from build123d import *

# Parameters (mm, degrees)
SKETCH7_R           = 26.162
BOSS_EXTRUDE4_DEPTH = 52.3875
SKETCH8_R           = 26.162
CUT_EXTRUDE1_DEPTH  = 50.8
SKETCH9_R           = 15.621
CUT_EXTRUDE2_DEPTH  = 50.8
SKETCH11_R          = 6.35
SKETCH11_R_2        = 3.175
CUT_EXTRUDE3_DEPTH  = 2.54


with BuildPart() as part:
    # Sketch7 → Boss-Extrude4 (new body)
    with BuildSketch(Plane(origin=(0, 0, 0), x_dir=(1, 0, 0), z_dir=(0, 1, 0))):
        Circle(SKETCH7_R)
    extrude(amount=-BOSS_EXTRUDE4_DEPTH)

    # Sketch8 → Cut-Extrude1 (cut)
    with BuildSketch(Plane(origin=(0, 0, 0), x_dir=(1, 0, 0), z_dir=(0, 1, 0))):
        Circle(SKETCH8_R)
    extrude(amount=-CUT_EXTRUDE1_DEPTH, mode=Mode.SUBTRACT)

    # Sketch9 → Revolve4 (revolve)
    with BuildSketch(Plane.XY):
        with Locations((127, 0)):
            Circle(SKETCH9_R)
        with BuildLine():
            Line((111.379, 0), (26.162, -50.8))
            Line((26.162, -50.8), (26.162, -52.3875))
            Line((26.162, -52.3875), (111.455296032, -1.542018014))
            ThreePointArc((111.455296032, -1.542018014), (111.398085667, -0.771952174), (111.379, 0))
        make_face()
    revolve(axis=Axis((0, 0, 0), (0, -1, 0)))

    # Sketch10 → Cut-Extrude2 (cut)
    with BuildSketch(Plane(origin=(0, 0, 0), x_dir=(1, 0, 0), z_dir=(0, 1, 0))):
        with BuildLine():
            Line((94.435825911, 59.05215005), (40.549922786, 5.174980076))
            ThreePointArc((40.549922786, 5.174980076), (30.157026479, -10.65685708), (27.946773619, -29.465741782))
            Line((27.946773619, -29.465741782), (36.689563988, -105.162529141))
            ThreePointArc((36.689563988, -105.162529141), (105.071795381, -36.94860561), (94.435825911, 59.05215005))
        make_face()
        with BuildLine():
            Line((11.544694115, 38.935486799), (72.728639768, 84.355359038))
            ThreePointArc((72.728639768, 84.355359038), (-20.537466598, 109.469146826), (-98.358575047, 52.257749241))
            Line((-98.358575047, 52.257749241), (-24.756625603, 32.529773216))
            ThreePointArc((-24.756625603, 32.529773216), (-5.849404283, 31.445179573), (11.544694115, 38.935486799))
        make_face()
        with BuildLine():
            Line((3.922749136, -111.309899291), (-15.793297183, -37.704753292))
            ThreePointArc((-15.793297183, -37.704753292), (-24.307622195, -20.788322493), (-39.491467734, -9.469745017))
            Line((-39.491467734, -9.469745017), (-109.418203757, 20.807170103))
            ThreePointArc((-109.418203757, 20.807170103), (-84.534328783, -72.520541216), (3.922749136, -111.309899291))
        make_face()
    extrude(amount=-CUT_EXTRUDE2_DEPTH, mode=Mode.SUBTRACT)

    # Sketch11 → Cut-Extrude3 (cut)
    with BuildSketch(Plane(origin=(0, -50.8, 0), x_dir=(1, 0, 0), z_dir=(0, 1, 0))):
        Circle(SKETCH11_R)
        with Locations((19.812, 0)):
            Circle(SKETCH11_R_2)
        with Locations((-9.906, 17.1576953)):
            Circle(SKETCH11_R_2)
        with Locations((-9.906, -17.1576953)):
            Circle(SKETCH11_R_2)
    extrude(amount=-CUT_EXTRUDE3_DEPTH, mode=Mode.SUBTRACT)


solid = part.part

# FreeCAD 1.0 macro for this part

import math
import FreeCAD as App
import Part
import Sketcher
from FreeCAD import Vector
Q = App.Units.Quantity

doc = App.newDocument("Part")
params = doc.addObject("Spreadsheet::Sheet", "Params")
for row, (alias, value) in enumerate([
    ("sketch1_diameter", "2.06 in"),
    ("pad1_length", "2.0625 in"),
    ("sketch2_diameter", "2.06 in"),
    ("pocket1_length", "2 in"),
    ("sketch3_radius", "0.615 in"),
    ("sketch3_height", "0.0625 in"),
    ("revolution_angle", "360 deg"),
    ("sketch4_length", "3 in"),
    ("sketch4_radius", "4.385 in"),
    ("pocket2_length", "2 in"),
    ("sketch5_diameter", "0.5 in"),
    ("sketch5_diameter2", "0.25 in"),
    ("pocket3_length", "0.1 in"),
], start=1):
    params.set(f"A{row}", alias)
    params.set(f"B{row}", "=" + value)
    params.setAlias(f"B{row}", alias)

body = doc.addObject("PartDesign::Body", "Body")

sketch1 = body.newObject("Sketcher::SketchObject", "Sketch")
sketch1.AttachmentSupport = (doc.getObject("XZ_Plane"), [""])
sketch1.MapMode = "FlatFace"
sketch1.addGeometry(Part.Circle(Vector(0, 0, 0), Vector(0, 0, 1), 26), False)
sketch1.addConstraint([
    Sketcher.Constraint("Coincident", 0, 3, -1, 1),
    Sketcher.Constraint("Diameter", 0, Q("2.06 in")),
])
sketch1.setExpression("Constraints[1]", "Params.sketch1_diameter")
pad1 = body.newObject("PartDesign::Pad", "Pad")
pad1.Profile = sketch1
pad1.setExpression("Length", "Params.pad1_length")

sketch2 = body.newObject("Sketcher::SketchObject", "Sketch001")
sketch2.AttachmentSupport = (doc.getObject("XZ_Plane"), [""])
sketch2.MapMode = "FlatFace"
sketch2.addGeometry(Part.Circle(Vector(0, 0, 0), Vector(0, 0, 1), 26), False)
sketch2.addConstraint([
    Sketcher.Constraint("Coincident", 0, 3, -1, 1),
    Sketcher.Constraint("Diameter", 0, Q("2.06 in")),
])
sketch2.setExpression("Constraints[1]", "Params.sketch2_diameter")
pocket1 = body.newObject("PartDesign::Pocket", "Pocket")
pocket1.Profile = sketch2
pocket1.setExpression("Length", "Params.pocket1_length")
pocket1.Reversed = True

sketch3 = body.newObject("Sketcher::SketchObject", "Sketch002")
sketch3.AttachmentSupport = (doc.getObject("XY_Plane"), [""])
sketch3.MapMode = "FlatFace"
sketch3.addGeometry([
    Part.LineSegment(Vector(111.4, 0, 0), Vector(26.2, -50.8, 0)),
    Part.LineSegment(Vector(26.2, -50.8, 0), Vector(26.2, -52.4, 0)),
    Part.LineSegment(Vector(26.2, -52.4, 0), Vector(111.5, -1.5, 0)),
    Part.ArcOfCircle(Part.Circle(Vector(127, 0, 0), Vector(0, 0, 1), 15.6), math.radians(-174), math.radians(180)),
], False)
sketch3.addConstraint([
    Sketcher.Constraint("Coincident", 0, 2, 1, 1),
    Sketcher.Constraint("Coincident", 1, 2, 2, 1),
    Sketcher.Constraint("Coincident", 2, 2, 3, 1),
    Sketcher.Constraint("Coincident", 3, 2, 0, 1),
    Sketcher.Constraint("Vertical", 1),
    Sketcher.Constraint("PointOnObject", 3, 3, -1),
    Sketcher.Constraint("PointOnObject", 3, 2, -1),
    Sketcher.Constraint("Parallel", 0, 2),
    Sketcher.Constraint("DistanceX", -1, 1, 3, 3, Q("5 in")),
    Sketcher.Constraint("DistanceY", 0, 2, -1, 1, Q("2 in")),
    Sketcher.Constraint("Radius", 3, Q("0.615 in")),
    Sketcher.Constraint("DistanceY", 1, 2, 1, 1, Q("0.0625 in")),
    Sketcher.Constraint("DistanceX", -1, 1, 0, 2, Q("1.03 in")),
])
sketch3.setExpression("Constraints[10]", "Params.sketch3_radius")
sketch3.setExpression("Constraints[11]", "Params.sketch3_height")
revolution = body.newObject("PartDesign::Revolution", "Revolution")
revolution.Profile = sketch3
revolution.ReferenceAxis = (sketch3, ["V_Axis"])
revolution.setExpression("Angle", "Params.revolution_angle")

sketch4 = body.newObject("Sketcher::SketchObject", "Sketch003")
sketch4.AttachmentSupport = (doc.getObject("XZ_Plane"), [""])
sketch4.MapMode = "FlatFace"
sketch4.addGeometry([
    Part.LineSegment(Vector(94, -59, 0), Vector(41, -5, 0)),
    Part.ArcOfCircle(Part.Circle(Vector(69, 25, 0), Vector(0, 0, 1), 41), math.radians(173), math.radians(227)),
    Part.LineSegment(Vector(28, 29, 0), Vector(37, 105, 0)),
    Part.ArcOfCircle(Part.Circle(Vector(0, 0, 0), Vector(0, 0, 1), 111), math.radians(-32), math.radians(71)),
    Part.LineSegment(Vector(12, -39, 0), Vector(73, -84, 0)),
    Part.ArcOfCircle(Part.Circle(Vector(0, 0, 0), Vector(0, 0, 1), 111), math.radians(-152), math.radians(-49)),
    Part.LineSegment(Vector(-98, -52, 0), Vector(-25, -33, 0)),
    Part.ArcOfCircle(Part.Circle(Vector(-13, -72, 0), Vector(0, 0, 1), 41), math.radians(53), math.radians(107)),
    Part.LineSegment(Vector(4, 111, 0), Vector(-16, 38, 0)),
    Part.ArcOfCircle(Part.Circle(Vector(-56, 47, 0), Vector(0, 0, 1), 41), math.radians(-67), math.radians(-13)),
    Part.LineSegment(Vector(-39, 9, 0), Vector(-109, -21, 0)),
    Part.ArcOfCircle(Part.Circle(Vector(0, 0, 0), Vector(0, 0, 1), 111), math.radians(88), math.radians(191)),
], False)
sketch4.addConstraint([
    Sketcher.Constraint("Coincident", 0, 2, 1, 2),
    Sketcher.Constraint("Tangent", 1, 1, 2, 1),
    Sketcher.Constraint("Coincident", 2, 2, 3, 2),
    Sketcher.Constraint("Coincident", 3, 1, 0, 1),
    Sketcher.Constraint("Coincident", 4, 2, 5, 2),
    Sketcher.Constraint("Coincident", 5, 1, 6, 1),
    Sketcher.Constraint("Coincident", 6, 2, 7, 2),
    Sketcher.Constraint("Tangent", 7, 1, 4, 1),
    Sketcher.Constraint("Coincident", 8, 2, 9, 2),
    Sketcher.Constraint("Tangent", 9, 1, 10, 1),
    Sketcher.Constraint("Coincident", 10, 2, 11, 2),
    Sketcher.Constraint("Coincident", 11, 1, 8, 1),
    Sketcher.Constraint("Coincident", 3, 3, -1, 1),
    Sketcher.Constraint("Coincident", 5, 3, -1, 1),
    Sketcher.Constraint("Coincident", 11, 3, -1, 1),
    Sketcher.Constraint("Equal", 3, 5),
    Sketcher.Constraint("Equal", 1, 7),
    Sketcher.Constraint("Equal", 7, 9),
    Sketcher.Constraint("Equal", 5, 11),
    Sketcher.Constraint("Equal", 0, 2),
    Sketcher.Constraint("Equal", 2, 4),
    Sketcher.Constraint("Equal", 4, 6),
    Sketcher.Constraint("Equal", 6, 8),
    Sketcher.Constraint("Equal", 8, 10),
    Sketcher.Constraint("Distance", 0, Q("3 in")),
    Sketcher.Constraint("Radius", 3, Q("4.385 in")),
    Sketcher.Constraint("Radius", 1, 41.190273),
    Sketcher.Constraint("DistanceX", 9, 3, -1, 1, 55.857799),
    Sketcher.Constraint("DistanceY", -1, 1, 11, 1, 111.309899),
    Sketcher.Constraint("DistanceY", 4, 2, 7, 3, 12.346599),
    Sketcher.Constraint("DistanceX", 9, 3, 8, 2, 40.064501),
    Sketcher.Constraint("DistanceY", 7, 3, -1, 1, 72.00876),
    Sketcher.Constraint("DistanceY", 0, 2, -1, 1, 5.17498),
    Sketcher.Constraint("DistanceY", -1, 1, 1, 1, 29.465742),
    Sketcher.Constraint("DistanceY", -1, 1, 2, 2, 105.162529),
    Sketcher.Constraint("DistanceY", 5, 1, -1, 1, 52.257749),
])
sketch4.setExpression("Constraints[24]", "Params.sketch4_length")
sketch4.setExpression("Constraints[25]", "Params.sketch4_radius")
pocket2 = body.newObject("PartDesign::Pocket", "Pocket001")
pocket2.Profile = sketch4
pocket2.setExpression("Length", "Params.pocket2_length")
pocket2.Reversed = True

sketch5 = body.newObject("Sketcher::SketchObject", "Sketch004")
sketch5.AttachmentSupport = (doc.getObject("XZ_Plane"), [""])
sketch5.MapMode = "FlatFace"
sketch5.AttachmentOffset = App.Placement(Vector(0, 0, 2 * 25.4), App.Rotation())
sketch5.addGeometry([
    Part.Circle(Vector(0, 0, 0), Vector(0, 0, 1), 6.3),
    Part.Circle(Vector(19.8, 0, 0), Vector(0, 0, 1), 3.2),
    Part.Circle(Vector(-9.9, -17.2, 0), Vector(0, 0, 1), 3.2),
    Part.Circle(Vector(-9.9, 17.2, 0), Vector(0, 0, 1), 3.2),
], False)
sketch5.addConstraint([
    Sketcher.Constraint("Coincident", 0, 3, -1, 1),
    Sketcher.Constraint("Equal", 1, 2),
    Sketcher.Constraint("Equal", 2, 3),
    Sketcher.Constraint("Symmetric", 2, 3, 3, 3, -1),
    Sketcher.Constraint("PointOnObject", 1, 3, -1),
    Sketcher.Constraint("Diameter", 0, Q("0.5 in")),
    Sketcher.Constraint("Diameter", 1, Q("0.25 in")),
    Sketcher.Constraint("DistanceX", -1, 1, 1, 3, Q("0.78 in")),
    Sketcher.Constraint("DistanceX", 2, 3, -1, 1, Q("0.39 in")),
    Sketcher.Constraint("DistanceY", 2, 3, -1, 1, Q("0.6754998 in")),
])
sketch5.setExpression("Constraints[5]", "Params.sketch5_diameter")
sketch5.setExpression("Constraints[6]", "Params.sketch5_diameter2")
pocket3 = body.newObject("PartDesign::Pocket", "Pocket002")
pocket3.Profile = sketch5
pocket3.setExpression("Length", "Params.pocket3_length")
pocket3.Reversed = True

doc.recompute()
